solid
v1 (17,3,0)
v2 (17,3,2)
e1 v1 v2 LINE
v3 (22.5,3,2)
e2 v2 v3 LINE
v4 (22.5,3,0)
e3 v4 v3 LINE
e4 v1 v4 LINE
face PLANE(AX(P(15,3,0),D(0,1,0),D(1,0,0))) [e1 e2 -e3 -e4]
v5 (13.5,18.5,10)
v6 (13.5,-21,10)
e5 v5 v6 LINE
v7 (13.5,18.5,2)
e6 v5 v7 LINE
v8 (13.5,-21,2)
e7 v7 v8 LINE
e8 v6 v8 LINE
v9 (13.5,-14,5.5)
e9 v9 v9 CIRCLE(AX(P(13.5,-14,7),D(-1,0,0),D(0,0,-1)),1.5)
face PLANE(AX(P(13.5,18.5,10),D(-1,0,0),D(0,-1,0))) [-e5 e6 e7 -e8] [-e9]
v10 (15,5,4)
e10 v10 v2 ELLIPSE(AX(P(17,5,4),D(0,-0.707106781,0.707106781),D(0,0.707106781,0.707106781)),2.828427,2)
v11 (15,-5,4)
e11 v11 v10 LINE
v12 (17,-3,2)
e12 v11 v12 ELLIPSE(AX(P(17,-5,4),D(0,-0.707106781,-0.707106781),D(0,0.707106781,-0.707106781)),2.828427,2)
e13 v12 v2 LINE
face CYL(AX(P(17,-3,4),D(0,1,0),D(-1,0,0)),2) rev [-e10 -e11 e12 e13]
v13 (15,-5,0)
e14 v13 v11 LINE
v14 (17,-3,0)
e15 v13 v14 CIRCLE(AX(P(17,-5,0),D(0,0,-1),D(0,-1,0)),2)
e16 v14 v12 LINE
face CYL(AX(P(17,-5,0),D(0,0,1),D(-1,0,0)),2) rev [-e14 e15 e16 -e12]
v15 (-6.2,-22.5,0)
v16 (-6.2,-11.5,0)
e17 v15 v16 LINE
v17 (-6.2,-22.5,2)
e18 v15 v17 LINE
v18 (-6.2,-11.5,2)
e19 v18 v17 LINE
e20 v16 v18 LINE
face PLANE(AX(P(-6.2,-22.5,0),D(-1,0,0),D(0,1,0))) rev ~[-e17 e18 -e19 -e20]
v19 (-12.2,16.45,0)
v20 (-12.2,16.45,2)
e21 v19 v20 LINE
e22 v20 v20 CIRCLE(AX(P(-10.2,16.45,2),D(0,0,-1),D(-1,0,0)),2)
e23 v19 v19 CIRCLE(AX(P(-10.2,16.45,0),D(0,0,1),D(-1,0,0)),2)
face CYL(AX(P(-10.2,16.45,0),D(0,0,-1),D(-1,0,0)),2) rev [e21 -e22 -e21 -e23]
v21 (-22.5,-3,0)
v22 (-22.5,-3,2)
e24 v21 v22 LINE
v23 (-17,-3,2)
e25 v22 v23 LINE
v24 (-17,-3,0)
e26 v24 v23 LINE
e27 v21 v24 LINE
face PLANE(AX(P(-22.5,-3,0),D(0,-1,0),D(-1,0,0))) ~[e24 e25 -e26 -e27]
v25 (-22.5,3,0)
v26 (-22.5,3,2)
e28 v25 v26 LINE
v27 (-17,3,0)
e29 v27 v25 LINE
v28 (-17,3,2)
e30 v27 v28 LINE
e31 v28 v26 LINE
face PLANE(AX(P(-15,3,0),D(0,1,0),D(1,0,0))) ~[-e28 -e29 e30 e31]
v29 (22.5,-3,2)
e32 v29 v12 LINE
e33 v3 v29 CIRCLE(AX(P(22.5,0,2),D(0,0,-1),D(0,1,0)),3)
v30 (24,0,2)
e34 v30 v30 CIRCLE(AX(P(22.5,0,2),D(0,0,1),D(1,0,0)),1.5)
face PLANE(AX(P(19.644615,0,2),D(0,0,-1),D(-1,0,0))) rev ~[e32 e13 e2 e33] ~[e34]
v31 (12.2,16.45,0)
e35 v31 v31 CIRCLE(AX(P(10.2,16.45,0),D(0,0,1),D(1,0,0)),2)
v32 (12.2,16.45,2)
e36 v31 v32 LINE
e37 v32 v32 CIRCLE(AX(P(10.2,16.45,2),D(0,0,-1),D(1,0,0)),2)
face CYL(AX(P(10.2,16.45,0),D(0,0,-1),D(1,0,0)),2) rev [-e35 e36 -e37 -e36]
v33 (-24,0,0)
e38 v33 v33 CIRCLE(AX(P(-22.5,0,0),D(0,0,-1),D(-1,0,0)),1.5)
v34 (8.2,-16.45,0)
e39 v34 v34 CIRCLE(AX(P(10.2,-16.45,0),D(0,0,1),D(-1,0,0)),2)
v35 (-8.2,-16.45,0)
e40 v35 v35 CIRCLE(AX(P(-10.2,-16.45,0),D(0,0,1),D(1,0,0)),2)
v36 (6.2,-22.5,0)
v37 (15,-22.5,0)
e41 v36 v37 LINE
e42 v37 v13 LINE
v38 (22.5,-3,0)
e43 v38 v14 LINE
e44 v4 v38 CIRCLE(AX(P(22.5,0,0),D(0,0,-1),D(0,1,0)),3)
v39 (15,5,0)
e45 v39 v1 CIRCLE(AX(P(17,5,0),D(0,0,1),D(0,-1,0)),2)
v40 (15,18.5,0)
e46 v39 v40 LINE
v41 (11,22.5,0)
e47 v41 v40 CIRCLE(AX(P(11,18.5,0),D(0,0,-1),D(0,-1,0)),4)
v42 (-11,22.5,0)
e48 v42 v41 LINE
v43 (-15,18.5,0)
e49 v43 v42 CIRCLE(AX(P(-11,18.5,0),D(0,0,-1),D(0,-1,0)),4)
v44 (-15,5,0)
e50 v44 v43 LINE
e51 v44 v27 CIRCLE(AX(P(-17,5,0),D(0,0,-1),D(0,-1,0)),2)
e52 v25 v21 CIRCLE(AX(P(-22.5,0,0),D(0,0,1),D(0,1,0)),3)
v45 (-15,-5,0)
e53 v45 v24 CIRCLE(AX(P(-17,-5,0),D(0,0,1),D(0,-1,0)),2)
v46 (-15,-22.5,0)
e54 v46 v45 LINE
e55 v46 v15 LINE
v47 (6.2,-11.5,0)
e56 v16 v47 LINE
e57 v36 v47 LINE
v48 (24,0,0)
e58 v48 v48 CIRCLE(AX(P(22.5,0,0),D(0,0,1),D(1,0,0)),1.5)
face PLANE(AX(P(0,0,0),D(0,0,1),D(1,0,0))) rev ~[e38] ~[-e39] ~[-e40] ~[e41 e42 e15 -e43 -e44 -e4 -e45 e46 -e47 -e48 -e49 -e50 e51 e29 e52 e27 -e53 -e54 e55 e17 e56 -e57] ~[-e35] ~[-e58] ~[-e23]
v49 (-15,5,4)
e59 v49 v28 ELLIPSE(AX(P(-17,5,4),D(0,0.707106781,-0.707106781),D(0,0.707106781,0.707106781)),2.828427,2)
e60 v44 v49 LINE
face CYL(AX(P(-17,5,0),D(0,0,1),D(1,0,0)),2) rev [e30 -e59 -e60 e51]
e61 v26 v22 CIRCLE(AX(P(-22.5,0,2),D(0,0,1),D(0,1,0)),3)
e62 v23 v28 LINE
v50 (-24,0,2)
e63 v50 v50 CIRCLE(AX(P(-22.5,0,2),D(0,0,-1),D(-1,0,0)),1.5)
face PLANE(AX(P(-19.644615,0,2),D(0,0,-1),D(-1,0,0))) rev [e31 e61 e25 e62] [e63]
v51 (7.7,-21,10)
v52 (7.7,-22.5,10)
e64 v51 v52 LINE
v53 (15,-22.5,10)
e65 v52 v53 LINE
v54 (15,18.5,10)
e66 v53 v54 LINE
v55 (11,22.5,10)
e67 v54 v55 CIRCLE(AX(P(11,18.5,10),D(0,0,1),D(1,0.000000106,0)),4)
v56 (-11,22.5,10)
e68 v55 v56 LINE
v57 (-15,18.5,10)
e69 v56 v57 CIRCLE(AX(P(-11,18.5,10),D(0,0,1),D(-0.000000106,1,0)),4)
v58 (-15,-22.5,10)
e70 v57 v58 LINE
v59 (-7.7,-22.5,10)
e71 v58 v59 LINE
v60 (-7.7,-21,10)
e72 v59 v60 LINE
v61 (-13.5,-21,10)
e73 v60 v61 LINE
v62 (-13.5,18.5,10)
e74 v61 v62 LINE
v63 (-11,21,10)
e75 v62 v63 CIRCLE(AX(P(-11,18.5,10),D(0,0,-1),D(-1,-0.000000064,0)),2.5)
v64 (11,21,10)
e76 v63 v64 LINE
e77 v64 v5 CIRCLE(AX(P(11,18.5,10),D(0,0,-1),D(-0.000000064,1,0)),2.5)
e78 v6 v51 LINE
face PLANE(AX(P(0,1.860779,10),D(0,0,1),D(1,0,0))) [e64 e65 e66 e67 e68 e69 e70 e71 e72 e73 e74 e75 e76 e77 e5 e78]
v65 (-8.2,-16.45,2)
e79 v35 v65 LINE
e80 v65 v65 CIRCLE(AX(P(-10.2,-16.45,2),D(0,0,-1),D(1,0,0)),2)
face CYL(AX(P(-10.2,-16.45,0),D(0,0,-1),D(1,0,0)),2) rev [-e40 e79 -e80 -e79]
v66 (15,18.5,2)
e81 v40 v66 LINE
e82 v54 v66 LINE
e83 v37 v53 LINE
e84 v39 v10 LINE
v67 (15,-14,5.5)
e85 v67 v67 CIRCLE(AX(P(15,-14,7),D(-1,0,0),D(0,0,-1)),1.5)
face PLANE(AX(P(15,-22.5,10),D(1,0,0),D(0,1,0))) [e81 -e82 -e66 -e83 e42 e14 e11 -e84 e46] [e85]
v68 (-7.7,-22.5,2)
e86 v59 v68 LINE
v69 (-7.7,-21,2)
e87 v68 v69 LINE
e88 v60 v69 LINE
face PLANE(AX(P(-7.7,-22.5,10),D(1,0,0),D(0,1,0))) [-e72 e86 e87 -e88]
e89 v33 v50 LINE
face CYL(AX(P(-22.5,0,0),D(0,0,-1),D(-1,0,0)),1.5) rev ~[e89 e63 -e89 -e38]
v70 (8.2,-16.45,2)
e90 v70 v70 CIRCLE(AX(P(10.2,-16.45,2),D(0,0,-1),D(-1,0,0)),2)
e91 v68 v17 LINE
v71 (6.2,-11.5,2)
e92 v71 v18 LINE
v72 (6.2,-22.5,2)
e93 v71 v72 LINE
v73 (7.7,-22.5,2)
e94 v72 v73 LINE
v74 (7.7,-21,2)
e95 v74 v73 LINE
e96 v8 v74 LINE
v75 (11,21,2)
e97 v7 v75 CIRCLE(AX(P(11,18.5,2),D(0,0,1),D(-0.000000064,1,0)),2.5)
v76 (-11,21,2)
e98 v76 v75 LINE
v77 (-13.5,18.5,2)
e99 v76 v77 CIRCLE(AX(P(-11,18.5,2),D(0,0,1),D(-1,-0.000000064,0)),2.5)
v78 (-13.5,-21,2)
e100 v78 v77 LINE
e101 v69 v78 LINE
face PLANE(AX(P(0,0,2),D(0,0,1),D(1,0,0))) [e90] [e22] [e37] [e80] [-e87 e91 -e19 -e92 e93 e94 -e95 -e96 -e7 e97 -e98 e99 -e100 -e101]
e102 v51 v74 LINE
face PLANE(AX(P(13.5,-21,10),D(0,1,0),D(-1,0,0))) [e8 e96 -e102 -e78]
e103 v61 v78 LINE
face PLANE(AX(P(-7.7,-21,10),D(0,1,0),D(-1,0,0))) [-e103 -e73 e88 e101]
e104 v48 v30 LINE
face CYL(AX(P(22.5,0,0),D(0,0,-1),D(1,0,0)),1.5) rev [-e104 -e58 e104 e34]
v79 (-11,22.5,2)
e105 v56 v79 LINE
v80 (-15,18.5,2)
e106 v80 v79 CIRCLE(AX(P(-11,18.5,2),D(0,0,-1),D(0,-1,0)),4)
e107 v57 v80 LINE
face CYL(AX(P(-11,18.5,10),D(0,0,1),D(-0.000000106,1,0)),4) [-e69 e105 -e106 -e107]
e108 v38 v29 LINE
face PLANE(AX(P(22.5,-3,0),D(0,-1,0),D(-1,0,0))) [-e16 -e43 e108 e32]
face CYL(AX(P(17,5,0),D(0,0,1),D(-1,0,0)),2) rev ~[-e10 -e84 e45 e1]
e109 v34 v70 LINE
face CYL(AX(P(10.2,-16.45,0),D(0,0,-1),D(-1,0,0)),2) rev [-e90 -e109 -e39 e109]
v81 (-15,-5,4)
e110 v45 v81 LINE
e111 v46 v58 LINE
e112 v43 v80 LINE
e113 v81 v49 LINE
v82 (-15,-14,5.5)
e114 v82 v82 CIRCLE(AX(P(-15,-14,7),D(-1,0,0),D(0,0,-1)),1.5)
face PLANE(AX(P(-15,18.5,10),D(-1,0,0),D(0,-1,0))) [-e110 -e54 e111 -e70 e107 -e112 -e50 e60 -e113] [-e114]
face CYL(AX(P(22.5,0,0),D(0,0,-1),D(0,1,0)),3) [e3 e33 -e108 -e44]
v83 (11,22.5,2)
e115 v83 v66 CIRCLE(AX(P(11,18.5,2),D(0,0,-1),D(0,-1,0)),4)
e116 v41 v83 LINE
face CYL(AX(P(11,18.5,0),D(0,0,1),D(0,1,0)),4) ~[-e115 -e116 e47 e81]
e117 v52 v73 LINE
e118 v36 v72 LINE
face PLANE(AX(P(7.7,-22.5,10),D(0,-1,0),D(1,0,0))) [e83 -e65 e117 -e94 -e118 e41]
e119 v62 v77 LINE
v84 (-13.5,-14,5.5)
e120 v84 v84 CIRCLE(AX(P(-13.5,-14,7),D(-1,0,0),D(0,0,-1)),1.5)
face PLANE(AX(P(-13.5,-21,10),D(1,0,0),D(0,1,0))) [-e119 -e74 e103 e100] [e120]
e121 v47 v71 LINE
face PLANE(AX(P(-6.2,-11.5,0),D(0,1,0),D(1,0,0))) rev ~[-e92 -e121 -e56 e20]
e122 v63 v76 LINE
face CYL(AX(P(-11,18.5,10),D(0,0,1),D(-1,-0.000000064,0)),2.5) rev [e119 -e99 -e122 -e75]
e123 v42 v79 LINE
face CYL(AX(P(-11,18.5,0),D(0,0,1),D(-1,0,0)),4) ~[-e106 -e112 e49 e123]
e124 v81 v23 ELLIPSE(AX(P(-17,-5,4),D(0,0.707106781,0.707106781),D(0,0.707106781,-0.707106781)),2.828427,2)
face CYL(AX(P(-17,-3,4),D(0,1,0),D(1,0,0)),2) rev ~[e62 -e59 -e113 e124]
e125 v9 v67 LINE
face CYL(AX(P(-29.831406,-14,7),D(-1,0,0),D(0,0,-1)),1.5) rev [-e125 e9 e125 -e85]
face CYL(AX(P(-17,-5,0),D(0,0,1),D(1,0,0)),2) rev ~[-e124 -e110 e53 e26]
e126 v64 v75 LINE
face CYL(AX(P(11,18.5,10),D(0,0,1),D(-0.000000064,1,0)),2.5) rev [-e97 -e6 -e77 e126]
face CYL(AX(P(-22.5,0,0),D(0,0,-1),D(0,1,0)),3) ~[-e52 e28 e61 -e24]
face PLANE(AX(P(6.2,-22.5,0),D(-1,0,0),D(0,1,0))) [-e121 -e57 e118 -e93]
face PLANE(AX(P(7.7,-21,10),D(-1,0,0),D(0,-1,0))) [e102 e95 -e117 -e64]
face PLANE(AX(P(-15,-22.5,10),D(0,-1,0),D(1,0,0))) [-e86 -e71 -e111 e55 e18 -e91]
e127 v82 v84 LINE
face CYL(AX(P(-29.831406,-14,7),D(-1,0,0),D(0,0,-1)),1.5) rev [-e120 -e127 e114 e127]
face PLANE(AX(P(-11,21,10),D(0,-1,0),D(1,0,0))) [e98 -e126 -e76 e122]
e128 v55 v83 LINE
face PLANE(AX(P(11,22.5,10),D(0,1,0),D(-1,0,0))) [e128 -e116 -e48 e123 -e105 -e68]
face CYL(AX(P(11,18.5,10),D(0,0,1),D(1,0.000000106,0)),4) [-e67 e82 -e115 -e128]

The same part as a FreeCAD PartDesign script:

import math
import FreeCAD as App
import Part
import Sketcher
from FreeCAD import Vector
Q = App.Units.Quantity


def edges_at(feature, points):
    """Names of the edges that pass closest to the given points."""
    edges = feature.Shape.Edges
    near = lambda p: min(range(len(edges)), key=lambda i: edges[i].distToShape(Part.Vertex(*p))[0])
    return sorted({f"Edge{near(p) + 1}" for p in points})


def add_polygon(sketch, points):
    """Adds a closed chain of lines whose ends are joined by coincident constraints."""
    first, n = sketch.GeometryCount, len(points)
    for a, b in zip(points, points[1:] + points[:1]):
        sketch.addGeometry(Part.LineSegment(App.Vector(*a, 0), App.Vector(*b, 0)), False)
    for i in range(n):
        sketch.addConstraint(Sketcher.Constraint("Coincident", first + i, 2, first + (i + 1) % n, 1))

doc = App.newDocument("Part")
params = doc.addObject("Spreadsheet::Sheet", "Params")
for row, (alias, value) in enumerate([
    ("sketch1_width", "30 mm"),
    ("sketch1_height", "45 mm"),
    ("pad1_length", "2 mm"),
    ("sketch2_diameter", "4 mm"),
    ("sketch2_height", "11 mm"),
    ("sketch2_width", "12.4 mm"),
    ("fillet_radius", "4 mm"),
    ("sketch3_radius", "4 mm"),
    ("sketch3_radius2", "2.5 mm"),
    ("sketch3_width", "22 mm"),
    ("sketch3_height", "41 mm"),
    ("sketch3_width2", "7.3 mm"),
    ("pad2_length", "10 mm"),
    ("sketch4_diameter", "3 mm"),
    ("sketch5_diameter", "3 mm"),
    ("sketch5_radius", "3 mm"),
    ("sketch5_width", "7.5 mm"),
    ("pad3_length", "2 mm"),
    ("fillet2_radius", "2 mm"),
    ("fillet3_radius", "2 mm"),
], start=1):
    params.set(f"A{row}", alias)
    params.set(f"B{row}", "=" + value)
    params.setAlias(f"B{row}", alias)

body = doc.addObject("PartDesign::Body", "Body")

# Sketch on XY plane
sketch1 = body.newObject("Sketcher::SketchObject", "Sketch")
sketch1.AttachmentSupport = (doc.getObject("XY_Plane"), [""])
sketch1.MapMode = "FlatFace"
add_polygon(sketch1, [(-15, 22.5), (-15, -22.5), (15, -22.5), (15, 22.5)])  # lines 0-3
sketch1.addConstraint(Sketcher.Constraint("Vertical", 0))
sketch1.addConstraint(Sketcher.Constraint("Horizontal", 1))
sketch1.addConstraint(Sketcher.Constraint("Vertical", 2))
sketch1.addConstraint(Sketcher.Constraint("Horizontal", 3))
sketch1.addConstraint(Sketcher.Constraint("Symmetric", 0, 2, 2, 2, -1, 1))
sketch1.addConstraint(Sketcher.Constraint("DistanceX", 1, 1, 1, 2, Q("30 mm")))
sketch1.addConstraint(Sketcher.Constraint("DistanceY", 0, 2, 0, 1, Q("45 mm")))
sketch1.setExpression("Constraints[9]", "Params.sketch1_width")
sketch1.setExpression("Constraints[10]", "Params.sketch1_height")
pad1 = body.newObject("PartDesign::Pad", "Pad")
pad1.Profile = sketch1
pad1.setExpression("Length", "Params.pad1_length")

# Sketch on XY plane
sketch2 = body.newObject("Sketcher::SketchObject", "Sketch001")
sketch2.AttachmentSupport = (doc.getObject("XY_Plane"), [""])
sketch2.MapMode = "FlatFace"
sketch2.addGeometry(Part.Circle(Vector(10.2, 16.45, 0), Vector(0, 0, 1), 2), False)  # 0
sketch2.addGeometry(Part.Circle(Vector(-10.2, 16.45, 0), Vector(0, 0, 1), 2), False)  # 1
sketch2.addGeometry(Part.Circle(Vector(-10.2, -16.45, 0), Vector(0, 0, 1), 2), False)  # 2
sketch2.addGeometry(Part.Circle(Vector(10.2, -16.45, 0), Vector(0, 0, 1), 2), False)  # 3
add_polygon(sketch2, [(-6.2, -11.5), (-6.2, -22.5), (6.2, -22.5), (6.2, -11.5)])  # lines 4-7
sketch2.addConstraint(Sketcher.Constraint("Vertical", 4))
sketch2.addConstraint(Sketcher.Constraint("Horizontal", 5))
sketch2.addConstraint(Sketcher.Constraint("Vertical", 6))
sketch2.addConstraint(Sketcher.Constraint("Horizontal", 7))
sketch2.addConstraint(Sketcher.Constraint("Equal", 0, 1))
sketch2.addConstraint(Sketcher.Constraint("Equal", 1, 2))
sketch2.addConstraint(Sketcher.Constraint("Equal", 2, 3))
sketch2.addConstraint(Sketcher.Constraint("Symmetric", 0, 3, 2, 3, -1, 1))
sketch2.addConstraint(Sketcher.Constraint("Symmetric", 1, 3, 3, 3, -1, 1))
sketch2.addConstraint(Sketcher.Constraint("Symmetric", 0, 3, 1, 3, -2))
sketch2.addConstraint(Sketcher.Constraint("Diameter", 0, Q("4 mm")))
sketch2.addConstraint(Sketcher.Constraint("DistanceY", 4, 2, 4, 1, Q("11 mm")))
sketch2.addConstraint(Sketcher.Constraint("DistanceX", 5, 1, 5, 2, Q("12.4 mm")))
sketch2.addConstraint(Sketcher.Constraint("DistanceX", 2, 3, 4, 2, Q("4 mm")))
sketch2.addConstraint(Sketcher.Constraint("DistanceX", 5, 2, 3, 3, Q("4 mm")))
sketch2.addConstraint(Sketcher.Constraint("DistanceY", 4, 2, -1, 1, Q("22.5 mm")))
sketch2.addConstraint(Sketcher.Constraint("DistanceY", 2, 3, 1, 3, Q("32.9 mm")))
sketch2.setExpression("Constraints[14]", "Params.sketch2_diameter")
sketch2.setExpression("Constraints[15]", "Params.sketch2_height")
sketch2.setExpression("Constraints[16]", "Params.sketch2_width")
pocket1 = body.newObject("PartDesign::Pocket", "Pocket")
pocket1.Profile = sketch2
pocket1.Type = "ThroughAll"
pocket1.Reversed = True
doc.recompute()

fillet = body.newObject("PartDesign::Fillet", "Fillet")
fillet.Base = (pocket1, edges_at(pocket1, [(-15, 22.5, 1), (15, 22.5, 1)]))
fillet.setExpression("Radius", "Params.fillet_radius")

# Sketch on XY plane
sketch3 = body.newObject("Sketcher::SketchObject", "Sketch002")
sketch3.AttachmentSupport = (doc.getObject("XY_Plane"), [""])
sketch3.MapMode = "FlatFace"
sketch3.AttachmentOffset = App.Placement(Vector(0, 0, 10), App.Rotation())
sketch3.addGeometry(Part.LineSegment(Vector(7.7, -21, 0), Vector(7.7, -22.5, 0)), False)
sketch3.addGeometry(Part.LineSegment(Vector(7.7, -22.5, 0), Vector(15, -22.5, 0)), False)
sketch3.addGeometry(Part.LineSegment(Vector(15, -22.5, 0), Vector(15, 18.5, 0)), False)
sketch3.addGeometry(Part.ArcOfCircle(Part.Circle(Vector(11, 18.5, 0), Vector(0, 0, 1), 4), math.radians(0.000006), math.radians(89.999994)), False)
sketch3.addGeometry(Part.LineSegment(Vector(11, 22.5, 0), Vector(-11, 22.5, 0)), False)
sketch3.addGeometry(Part.ArcOfCircle(Part.Circle(Vector(-11, 18.5, 0), Vector(0, 0, 1), 4), math.radians(90.000006), math.radians(179.999994)), False)
sketch3.addGeometry(Part.LineSegment(Vector(-15, 18.5, 0), Vector(-15, -22.5, 0)), False)
sketch3.addGeometry(Part.LineSegment(Vector(-15, -22.5, 0), Vector(-7.7, -22.5, 0)), False)
sketch3.addGeometry(Part.LineSegment(Vector(-7.7, -22.5, 0), Vector(-7.7, -21, 0)), False)
sketch3.addGeometry(Part.LineSegment(Vector(-7.7, -21, 0), Vector(-13.5, -21, 0)), False)
sketch3.addGeometry(Part.LineSegment(Vector(-13.5, -21, 0), Vector(-13.5, 18.5, 0)), False)
sketch3.addGeometry(Part.ArcOfCircle(Part.Circle(Vector(-11, 18.5, 0), Vector(0, 0, 1), 2.5), math.radians(89.999996), math.radians(180.000004)), False)
sketch3.addGeometry(Part.LineSegment(Vector(-11, 21, 0), Vector(11, 21, 0)), False)
sketch3.addGeometry(Part.ArcOfCircle(Part.Circle(Vector(11, 18.5, 0), Vector(0, 0, 1), 2.5), math.radians(-0.000004), math.radians(90.000004)), False)
sketch3.addGeometry(Part.LineSegment(Vector(13.5, 18.5, 0), Vector(13.5, -21, 0)), False)
sketch3.addGeometry(Part.LineSegment(Vector(13.5, -21, 0), Vector(7.7, -21, 0)), False)
sketch3.addConstraint(Sketcher.Constraint("Coincident", 0, 2, 1, 1))
sketch3.addConstraint(Sketcher.Constraint("Coincident", 1, 2, 2, 1))
sketch3.addConstraint(Sketcher.Constraint("Tangent", 2, 2, 3, 1))
sketch3.addConstraint(Sketcher.Constraint("Tangent", 3, 2, 4, 1))
sketch3.addConstraint(Sketcher.Constraint("Tangent", 4, 2, 5, 1))
sketch3.addConstraint(Sketcher.Constraint("Tangent", 5, 2, 6, 1))
sketch3.addConstraint(Sketcher.Constraint("Coincident", 6, 2, 7, 1))
sketch3.addConstraint(Sketcher.Constraint("Coincident", 7, 2, 8, 1))
sketch3.addConstraint(Sketcher.Constraint("Coincident", 8, 2, 9, 1))
sketch3.addConstraint(Sketcher.Constraint("Coincident", 9, 2, 10, 1))
sketch3.addConstraint(Sketcher.Constraint("Tangent", 10, 2, 11, 2))
sketch3.addConstraint(Sketcher.Constraint("Tangent", 11, 1, 12, 1))
sketch3.addConstraint(Sketcher.Constraint("Tangent", 12, 2, 13, 2))
sketch3.addConstraint(Sketcher.Constraint("Tangent", 13, 1, 14, 1))
sketch3.addConstraint(Sketcher.Constraint("Coincident", 14, 2, 15, 1))
sketch3.addConstraint(Sketcher.Constraint("Coincident", 15, 2, 0, 1))
sketch3.addConstraint(Sketcher.Constraint("Vertical", 0))
sketch3.addConstraint(Sketcher.Constraint("Horizontal", 1))
sketch3.addConstraint(Sketcher.Constraint("Vertical", 2))
sketch3.addConstraint(Sketcher.Constraint("Horizontal", 4))
sketch3.addConstraint(Sketcher.Constraint("Vertical", 6))
sketch3.addConstraint(Sketcher.Constraint("Horizontal", 7))
sketch3.addConstraint(Sketcher.Constraint("Vertical", 8))
sketch3.addConstraint(Sketcher.Constraint("Horizontal", 9))
sketch3.addConstraint(Sketcher.Constraint("Vertical", 10))
sketch3.addConstraint(Sketcher.Constraint("Horizontal", 12))
sketch3.addConstraint(Sketcher.Constraint("Vertical", 14))
sketch3.addConstraint(Sketcher.Constraint("Horizontal", 15))
sketch3.addConstraint(Sketcher.Constraint("Coincident", 11, 3, 5, 3))
sketch3.addConstraint(Sketcher.Constraint("Coincident", 13, 3, 3, 3))
sketch3.addConstraint(Sketcher.Constraint("Equal", 3, 5))
sketch3.addConstraint(Sketcher.Constraint("Symmetric", 1, 2, 6, 2, -2))
sketch3.addConstraint(Sketcher.Constraint("Symmetric", 8, 2, 15, 2, -2))
sketch3.addConstraint(Sketcher.Constraint("Radius", 3, Q("4 mm")))
sketch3.addConstraint(Sketcher.Constraint("Radius", 11, Q("2.5 mm")))
sketch3.addConstraint(Sketcher.Constraint("DistanceX", 4, 2, 4, 1, Q("22 mm")))
sketch3.addConstraint(Sketcher.Constraint("DistanceY", 2, 1, 2, 2, Q("41 mm")))
sketch3.addConstraint(Sketcher.Constraint("DistanceX", 1, 1, 1, 2, Q("7.3 mm")))
sketch3.addConstraint(Sketcher.Constraint("DistanceY", 0, 2, 0, 1, Q("1.5 mm")))
sketch3.addConstraint(Sketcher.Constraint("DistanceY", 8, 2, -1, 1, Q("21 mm")))
sketch3.setExpression("Constraints[33]", "Params.sketch3_radius")
sketch3.setExpression("Constraints[34]", "Params.sketch3_radius2")
sketch3.setExpression("Constraints[35]", "Params.sketch3_width")
sketch3.setExpression("Constraints[36]", "Params.sketch3_height")
sketch3.setExpression("Constraints[37]", "Params.sketch3_width2")
pad2 = body.newObject("PartDesign::Pad", "Pad001")
pad2.Profile = sketch3
pad2.setExpression("Length", "Params.pad2_length")
pad2.Reversed = True

# Sketch on YZ plane
sketch4 = body.newObject("Sketcher::SketchObject", "Sketch003")
sketch4.AttachmentSupport = (doc.getObject("YZ_Plane"), [""])
sketch4.MapMode = "FlatFace"
sketch4.addGeometry(Part.Circle(Vector(-14, 7, 0), Vector(0, 0, 1), 1.5), False)
sketch4.addConstraint(Sketcher.Constraint("Diameter", 0, Q("3 mm")))
sketch4.addConstraint(Sketcher.Constraint("DistanceX", 0, 3, -1, 1, Q("14 mm")))
sketch4.addConstraint(Sketcher.Constraint("DistanceY", -1, 1, 0, 3, Q("7 mm")))
sketch4.setExpression("Constraints[0]", "Params.sketch4_diameter")
pocket2 = body.newObject("PartDesign::Pocket", "Pocket001")
pocket2.Profile = sketch4
pocket2.Type = "ThroughAll"
pocket2.Midplane = True

# Sketch on XY plane
sketch5 = body.newObject("Sketcher::SketchObject", "Sketch004")
sketch5.AttachmentSupport = (doc.getObject("XY_Plane"), [""])
sketch5.MapMode = "FlatFace"
sketch5.addGeometry(Part.LineSegment(Vector(22.5, 3, 0), Vector(15, 3, 0)), False)
sketch5.addGeometry(Part.LineSegment(Vector(15, 3, 0), Vector(15, -3, 0)), False)
sketch5.addGeometry(Part.LineSegment(Vector(15, -3, 0), Vector(22.5, -3, 0)), False)
sketch5.addGeometry(Part.ArcOfCircle(Part.Circle(Vector(22.5, 0, 0), Vector(0, 0, 1), 3), math.radians(-90), math.radians(90)), False)
sketch5.addGeometry(Part.Circle(Vector(22.5, 0, 0), Vector(0, 0, 1), 1.5), False)
sketch5.addConstraint(Sketcher.Constraint("Coincident", 0, 2, 1, 1))
sketch5.addConstraint(Sketcher.Constraint("Coincident", 1, 2, 2, 1))
sketch5.addConstraint(Sketcher.Constraint("Tangent", 2, 2, 3, 1))
sketch5.addConstraint(Sketcher.Constraint("Tangent", 3, 2, 0, 1))
sketch5.addConstraint(Sketcher.Constraint("Horizontal", 0))
sketch5.addConstraint(Sketcher.Constraint("Vertical", 1))
sketch5.addConstraint(Sketcher.Constraint("Horizontal", 2))
sketch5.addConstraint(Sketcher.Constraint("Coincident", 4, 3, 3, 3))
sketch5.addConstraint(Sketcher.Constraint("PointOnObject", 3, 3, -1))
sketch5.addConstraint(Sketcher.Constraint("Diameter", 4, Q("3 mm")))
sketch5.addConstraint(Sketcher.Constraint("Radius", 3, Q("3 mm")))
sketch5.addConstraint(Sketcher.Constraint("DistanceX", 0, 2, 0, 1, Q("7.5 mm")))
sketch5.addConstraint(Sketcher.Constraint("DistanceX", -1, 1, 0, 2, Q("15 mm")))
sketch5.setExpression("Constraints[9]", "Params.sketch5_diameter")
sketch5.setExpression("Constraints[10]", "Params.sketch5_radius")
sketch5.setExpression("Constraints[11]", "Params.sketch5_width")
pad3 = body.newObject("PartDesign::Pad", "Pad002")
pad3.Profile = sketch5
pad3.setExpression("Length", "Params.pad3_length")
doc.recompute()

fillet2 = body.newObject("PartDesign::Fillet", "Fillet001")
fillet2.Base = (pad3, edges_at(pad3, [(15, 0, 2), (15, 3, 1), (15, -3, 1)]))
fillet2.setExpression("Radius", "Params.fillet2_radius")
doc.recompute()

mirrored = body.newObject("PartDesign::Mirrored", "Mirrored")
mirrored.Originals = [pad3]
mirrored.MirrorPlane = (doc.getObject("YZ_Plane"), [""])
body.Tip = mirrored
doc.recompute()

fillet3 = body.newObject("PartDesign::Fillet", "Fillet002")
fillet3.Base = (mirrored, edges_at(mirrored, [(-15, 0, 2), (-15, -3, 1), (-15, 3, 1)]))
fillet3.setExpression("Radius", "Params.fillet3_radius")

doc.recompute()
